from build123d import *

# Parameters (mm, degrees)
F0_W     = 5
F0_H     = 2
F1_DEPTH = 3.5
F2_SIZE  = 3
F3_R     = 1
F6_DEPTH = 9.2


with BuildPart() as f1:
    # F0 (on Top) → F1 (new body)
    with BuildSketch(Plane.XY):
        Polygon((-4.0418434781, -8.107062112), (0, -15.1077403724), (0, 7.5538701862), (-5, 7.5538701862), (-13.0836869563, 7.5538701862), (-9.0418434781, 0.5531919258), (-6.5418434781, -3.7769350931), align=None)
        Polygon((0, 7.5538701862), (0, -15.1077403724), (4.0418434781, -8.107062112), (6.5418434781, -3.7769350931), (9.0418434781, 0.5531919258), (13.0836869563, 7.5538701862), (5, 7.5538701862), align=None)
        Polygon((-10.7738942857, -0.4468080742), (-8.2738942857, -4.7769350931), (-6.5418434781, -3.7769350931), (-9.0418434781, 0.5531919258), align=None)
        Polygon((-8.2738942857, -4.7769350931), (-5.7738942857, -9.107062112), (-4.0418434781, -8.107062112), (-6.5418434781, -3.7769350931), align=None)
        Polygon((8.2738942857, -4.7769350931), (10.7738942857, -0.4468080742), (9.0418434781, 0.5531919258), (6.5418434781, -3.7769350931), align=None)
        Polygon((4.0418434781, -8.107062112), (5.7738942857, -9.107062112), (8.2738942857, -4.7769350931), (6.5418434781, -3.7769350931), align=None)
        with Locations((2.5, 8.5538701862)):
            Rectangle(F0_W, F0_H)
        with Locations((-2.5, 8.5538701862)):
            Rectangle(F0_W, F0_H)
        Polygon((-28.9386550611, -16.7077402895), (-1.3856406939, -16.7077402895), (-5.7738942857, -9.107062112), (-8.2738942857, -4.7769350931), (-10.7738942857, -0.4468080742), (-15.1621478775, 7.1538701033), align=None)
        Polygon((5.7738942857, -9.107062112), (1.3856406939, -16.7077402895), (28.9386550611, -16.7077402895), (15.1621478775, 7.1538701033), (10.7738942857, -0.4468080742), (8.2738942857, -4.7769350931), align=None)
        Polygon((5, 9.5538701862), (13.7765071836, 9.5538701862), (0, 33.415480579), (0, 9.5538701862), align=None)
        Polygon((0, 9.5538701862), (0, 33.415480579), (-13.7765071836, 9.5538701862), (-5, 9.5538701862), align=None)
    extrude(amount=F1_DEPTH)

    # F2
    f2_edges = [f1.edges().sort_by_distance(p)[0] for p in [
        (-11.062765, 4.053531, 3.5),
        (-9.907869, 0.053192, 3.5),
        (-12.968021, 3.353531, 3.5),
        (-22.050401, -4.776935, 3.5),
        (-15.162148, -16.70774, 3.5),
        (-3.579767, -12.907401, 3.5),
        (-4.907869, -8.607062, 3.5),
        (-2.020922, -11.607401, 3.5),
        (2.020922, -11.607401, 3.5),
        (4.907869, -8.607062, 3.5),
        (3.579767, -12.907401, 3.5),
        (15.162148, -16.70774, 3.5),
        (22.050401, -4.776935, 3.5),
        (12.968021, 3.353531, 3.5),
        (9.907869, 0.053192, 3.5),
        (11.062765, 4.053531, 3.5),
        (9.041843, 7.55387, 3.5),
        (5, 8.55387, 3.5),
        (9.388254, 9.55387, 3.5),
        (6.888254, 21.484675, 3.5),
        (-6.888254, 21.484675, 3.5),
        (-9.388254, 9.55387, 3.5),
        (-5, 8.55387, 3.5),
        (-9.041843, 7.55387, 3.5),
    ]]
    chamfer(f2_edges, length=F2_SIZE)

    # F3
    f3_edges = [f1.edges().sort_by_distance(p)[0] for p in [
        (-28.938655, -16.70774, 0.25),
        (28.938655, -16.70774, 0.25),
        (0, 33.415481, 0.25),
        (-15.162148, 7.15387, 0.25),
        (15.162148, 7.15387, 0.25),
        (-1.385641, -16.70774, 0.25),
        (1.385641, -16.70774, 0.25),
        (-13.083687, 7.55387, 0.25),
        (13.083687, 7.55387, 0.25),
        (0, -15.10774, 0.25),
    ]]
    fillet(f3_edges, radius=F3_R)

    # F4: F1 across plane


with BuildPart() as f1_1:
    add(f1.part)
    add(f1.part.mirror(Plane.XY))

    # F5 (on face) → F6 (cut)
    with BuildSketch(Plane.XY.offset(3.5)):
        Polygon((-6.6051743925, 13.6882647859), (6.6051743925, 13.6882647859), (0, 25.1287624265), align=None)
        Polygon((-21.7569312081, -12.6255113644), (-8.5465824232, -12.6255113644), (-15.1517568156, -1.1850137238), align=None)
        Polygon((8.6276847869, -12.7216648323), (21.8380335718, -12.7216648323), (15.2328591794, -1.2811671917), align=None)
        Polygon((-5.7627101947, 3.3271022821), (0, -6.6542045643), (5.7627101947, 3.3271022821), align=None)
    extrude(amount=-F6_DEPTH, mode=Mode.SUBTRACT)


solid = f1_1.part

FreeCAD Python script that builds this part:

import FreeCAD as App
import Part
import Sketcher
from FreeCAD import Vector
Q = App.Units.Quantity


def edges_at(feature, points):
    """Names of the edges that pass closest to the given points."""
    edges = feature.Shape.Edges
    near = lambda p: min(range(len(edges)), key=lambda i: edges[i].distToShape(Part.Vertex(*p))[0])
    return sorted({f"Edge{near(p) + 1}" for p in points})


def add_polygon(sketch, points):
    """Adds a closed chain of lines whose ends are joined by coincident constraints."""
    first, n = sketch.GeometryCount, len(points)
    for a, b in zip(points, points[1:] + points[:1]):
        sketch.addGeometry(Part.LineSegment(App.Vector(*a, 0), App.Vector(*b, 0)), False)
    for i in range(n):
        sketch.addConstraint(Sketcher.Constraint("Coincident", first + i, 2, first + (i + 1) % n, 1))

doc = App.newDocument("Part")
body = doc.addObject("PartDesign::Body", "Body")

sketch1 = body.newObject("Sketcher::SketchObject", "Sketch")
sketch1.AttachmentSupport = (doc.getObject("XY_Plane"), [""])
sketch1.MapMode = "FlatFace"
add_polygon(sketch1, [(-4, -8.1), (0, -15.1), (4, -8.1), (5.8, -9.1), (1.4, -16.7), (28.9, -16.7), (15.2, 7.2), (10.8, -0.4), (9, 0.6), (13.1, 7.6), (5, 7.6), (5, 9.6), (13.8, 9.6), (0, 33.4), (-13.8, 9.6), (-5, 9.6), (-5, 7.6), (-13.1, 7.6), (-9, 0.6), (-10.8, -0.4), (-15.2, 7.2), (-28.9, -16.7), (-1.4, -16.7), (-5.8, -9.1)])
sketch1.addConstraint([
    Sketcher.Constraint("Horizontal", 4),
    Sketcher.Constraint("Horizontal", 9),
    Sketcher.Constraint("Vertical", 10),
    Sketcher.Constraint("Horizontal", 11),
    Sketcher.Constraint("Horizontal", 14),
    Sketcher.Constraint("Vertical", 15),
    Sketcher.Constraint("Horizontal", 16),
    Sketcher.Constraint("Horizontal", 21),
    Sketcher.Constraint("Symmetric", 11, 2, 13, 2, -2),
    Sketcher.Constraint("Symmetric", 9, 2, 15, 2, -2),
    Sketcher.Constraint("Symmetric", 7, 2, 17, 2, -2),
    Sketcher.Constraint("Symmetric", 6, 2, 18, 2, -2),
    Sketcher.Constraint("Symmetric", 5, 2, 19, 2, -2),
    Sketcher.Constraint("Symmetric", 4, 2, 20, 2, -2),
    Sketcher.Constraint("Symmetric", 2, 2, 22, 2, -2),
    Sketcher.Constraint("Symmetric", 1, 2, 23, 2, -2),
    Sketcher.Constraint("PointOnObject", 0, 2, -2),
    Sketcher.Constraint("PointOnObject", 12, 2, -2),
    Sketcher.Constraint("Perpendicular", 1, 2),
    Sketcher.Constraint("Perpendicular", 2, 3),
    Sketcher.Constraint("Parallel", 0, 5),
    Sketcher.Constraint("Parallel", 3, 6),
    Sketcher.Constraint("Perpendicular", 6, 7),
    Sketcher.Constraint("Perpendicular", 7, 8),
    Sketcher.Constraint("Parallel", 5, 12),
    Sketcher.Constraint("Parallel", 12, 17),
    Sketcher.Constraint("Parallel", 19, 22),
    Sketcher.Constraint("Equal", 3, 6),
    Sketcher.Constraint("Equal", 2, 7),
    Sketcher.Constraint("Equal", 1, 8),
    Sketcher.Constraint("Equal", 5, 12),
    Sketcher.Constraint("DistanceY", 10, 1, 10, 2, Q("2 mm")),
    Sketcher.Constraint("Angle", 0, Q("-60 deg")),
    Sketcher.Constraint("Distance", 2, Q("2 mm")),
    Sketcher.Constraint("DistanceX", -1, 1, 9, 2, Q("5 mm")),
    Sketcher.Constraint("DistanceX", 2, 2, 6, 2, Q("5 mm")),
    Sketcher.Constraint("DistanceY", 3, 2, 0, 2, Q("1.6 mm")),
    Sketcher.Constraint("DistanceX", 13, 2, 6, 2, Q("24.550401 mm")),
    Sketcher.Constraint("DistanceX", 4, 1, 4, 2, Q("27.553014 mm")),
    Sketcher.Constraint("DistanceY", 0, 2, -1, 1, Q("15.10774 mm")),
])
pad1 = body.newObject("PartDesign::Pad", "Pad")
pad1.Profile = sketch1
pad1.Length = 3.5
doc.recompute()

chamfer = body.newObject("PartDesign::Chamfer", "Chamfer")
chamfer.Base = (pad1, edges_at(pad1, [
    (-11.063, 4.054, 3.5),
    (-9.908, 0.053, 3.5),
    (-12.968, 3.354, 3.5),
    (-22.05, -4.777, 3.5),
    (-15.162, -16.708, 3.5),
    (-3.58, -12.907, 3.5),
    (-4.908, -8.607, 3.5),
    (-2.021, -11.607, 3.5),
    (2.021, -11.607, 3.5),
    (4.908, -8.607, 3.5),
    (3.58, -12.907, 3.5),
    (15.162, -16.708, 3.5),
    (22.05, -4.777, 3.5),
    (12.968, 3.354, 3.5),
    (9.908, 0.053, 3.5),
    (11.063, 4.054, 3.5),
    (9.042, 7.554, 3.5),
    (5, 8.554, 3.5),
    (9.388, 9.554, 3.5),
    (6.888, 21.485, 3.5),
    (-6.888, 21.485, 3.5),
    (-9.388, 9.554, 3.5),
    (-5, 8.554, 3.5),
    (-9.042, 7.554, 3.5),
]))
chamfer.Size = 3
doc.recompute()

fillet = body.newObject("PartDesign::Fillet", "Fillet")
fillet.Base = (chamfer, edges_at(chamfer, [
    (-28.939, -16.708, 0.25),
    (28.939, -16.708, 0.25),
    (0, 33.415, 0.25),
    (-15.162, 7.154, 0.25),
    (15.162, 7.154, 0.25),
    (-1.386, -16.708, 0.25),
    (1.386, -16.708, 0.25),
    (-13.084, 7.554, 0.25),
    (13.084, 7.554, 0.25),
    (0, -15.108, 0.25),
]))
fillet.Radius = 1
body2 = doc.addObject("PartDesign::Body", "Body001")
doc.recompute()

body2.BaseFeature = body
doc.recompute()

mirroring = doc.addObject("Part::Mirroring", "Mirroring")
mirroring.Source = body
mirroring.Base = Vector(0, 0, 0)
mirroring.Normal = Vector(0, 0, 1)
body3 = doc.addObject("PartDesign::Body", "Body002")
body3.BaseFeature = mirroring
boolean = body2.newObject("PartDesign::Boolean", "Boolean")
boolean.Type = "Fuse"
boolean.addObjects([body3])
doc.recompute()

sketch2 = body2.newObject("Sketcher::SketchObject", "Sketch001")
sketch2.AttachmentSupport = (doc.getObject("XY_Plane001"), [""])
sketch2.MapMode = "FlatFace"
sketch2.AttachmentOffset = App.Placement(Vector(0, 0, 3.5), App.Rotation())
add_polygon(sketch2, [(-7, 14), (7, 14), (0, 25)])
add_polygon(sketch2, [(-22, -13), (-9, -13), (-15, -1)])
add_polygon(sketch2, [(9, -13), (22, -13), (15, -1)])
add_polygon(sketch2, [(-6, 3), (0, -7), (6, 3)])
sketch2.addConstraint([
    Sketcher.Constraint("Horizontal", 0),
    Sketcher.Constraint("Horizontal", 3),
    Sketcher.Constraint("Horizontal", 6),
    Sketcher.Constraint("Horizontal", 11),
    Sketcher.Constraint("PointOnObject", 1, 2, -2),
    Sketcher.Constraint("PointOnObject", 9, 2, -2),
    Sketcher.Constraint("Parallel", 1, 4),
    Sketcher.Constraint("Parallel", 2, 5),
    Sketcher.Constraint("Parallel", 4, 7),
    Sketcher.Constraint("Parallel", 5, 8),
    Sketcher.Constraint("Parallel", 7, 9),
    Sketcher.Constraint("Parallel", 8, 10),
    Sketcher.Constraint("Equal", 0, 3),
    Sketcher.Constraint("Equal", 3, 6),
    Sketcher.Constraint("Equal", 1, 2),
    Sketcher.Constraint("Angle", 1, Q("120 deg")),
    Sketcher.Constraint("DistanceX", 0, 1, 0, 2, Q("13.210349 mm")),
    Sketcher.Constraint("DistanceX", 11, 2, 11, 1, Q("11.52542 mm")),
    Sketcher.Constraint("DistanceY", 3, 2, -1, 1, Q("12.625511 mm")),
    Sketcher.Constraint("DistanceX", 5, 2, -1, 1, Q("21.756931 mm")),
    Sketcher.Constraint("DistanceX", -1, 1, 7, 2, Q("15.232859 mm")),
    Sketcher.Constraint("DistanceY", 4, 2, 2, 2, Q("14.873279 mm")),
    Sketcher.Constraint("DistanceY", 6, 2, 0, 2, Q("26.40993 mm")),
    Sketcher.Constraint("DistanceY", 8, 2, 9, 2, Q("6.06746 mm")),
])
pocket1 = body2.newObject("PartDesign::Pocket", "Pocket")
pocket1.Profile = sketch2
pocket1.Length = 9.2
mirroring.Visibility = False

doc.recompute()
